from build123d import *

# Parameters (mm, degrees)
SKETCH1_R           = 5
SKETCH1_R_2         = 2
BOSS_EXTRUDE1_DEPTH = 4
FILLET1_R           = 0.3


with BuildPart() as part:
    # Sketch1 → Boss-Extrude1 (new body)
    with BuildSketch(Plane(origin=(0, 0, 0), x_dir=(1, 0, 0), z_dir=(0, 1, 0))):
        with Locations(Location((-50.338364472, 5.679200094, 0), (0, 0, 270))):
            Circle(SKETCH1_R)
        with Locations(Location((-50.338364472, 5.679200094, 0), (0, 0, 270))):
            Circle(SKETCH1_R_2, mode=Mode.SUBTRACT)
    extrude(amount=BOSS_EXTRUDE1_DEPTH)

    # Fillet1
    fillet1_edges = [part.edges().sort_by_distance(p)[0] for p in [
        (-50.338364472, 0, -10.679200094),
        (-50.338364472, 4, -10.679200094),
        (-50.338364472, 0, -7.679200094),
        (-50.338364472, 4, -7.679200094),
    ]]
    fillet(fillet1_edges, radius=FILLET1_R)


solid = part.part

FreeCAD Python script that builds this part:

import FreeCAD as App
import Part
import Sketcher


def edges_at(feature, points):
    """Names of the edges that pass closest to the given points."""
    edges = feature.Shape.Edges
    near = lambda p: min(range(len(edges)), key=lambda i: edges[i].distToShape(Part.Vertex(*p))[0])
    return sorted({f"Edge{near(p) + 1}" for p in points})

doc = App.newDocument("Part")
body = doc.addObject("PartDesign::Body", "Body")

sketch1 = body.newObject("Sketcher::SketchObject", "Sketch")
sketch1.AttachmentSupport = (doc.getObject("XZ_Plane"), [""])
sketch1.MapMode = "FlatFace"
sketch1.addGeometry(Part.Circle(App.Vector(-50.3, -5.7, 0), App.Vector(0, 0, 1), 5), False)
sketch1.addGeometry(Part.Circle(App.Vector(-50.3, -5.7, 0), App.Vector(0, 0, 1), 2), False)
sketch1.addConstraint(Sketcher.Constraint("Coincident", 1, 3, 0, 3))
sketch1.addConstraint(Sketcher.Constraint("Diameter", 0, 10.0))
sketch1.addConstraint(Sketcher.Constraint("Diameter", 1, 4.0))
sketch1.addConstraint(Sketcher.Constraint("DistanceY", 0, 3, -1, 1, 5.6792))
sketch1.addConstraint(Sketcher.Constraint("DistanceX", 0, 3, -1, 1, 50.338364))
pad1 = body.newObject("PartDesign::Pad", "Pad")
pad1.Profile = sketch1
pad1.Length = 4
pad1.Reversed = True
doc.recompute()

fillet = body.newObject("PartDesign::Fillet", "Fillet")
fillet.Base = (pad1, edges_at(pad1, [
    (-50.338, 0, -10.679),
    (-50.338, 4, -10.679),
    (-50.338, 0, -7.679),
    (-50.338, 4, -7.679),
]))
fillet.Radius = 0.3

doc.recompute()
